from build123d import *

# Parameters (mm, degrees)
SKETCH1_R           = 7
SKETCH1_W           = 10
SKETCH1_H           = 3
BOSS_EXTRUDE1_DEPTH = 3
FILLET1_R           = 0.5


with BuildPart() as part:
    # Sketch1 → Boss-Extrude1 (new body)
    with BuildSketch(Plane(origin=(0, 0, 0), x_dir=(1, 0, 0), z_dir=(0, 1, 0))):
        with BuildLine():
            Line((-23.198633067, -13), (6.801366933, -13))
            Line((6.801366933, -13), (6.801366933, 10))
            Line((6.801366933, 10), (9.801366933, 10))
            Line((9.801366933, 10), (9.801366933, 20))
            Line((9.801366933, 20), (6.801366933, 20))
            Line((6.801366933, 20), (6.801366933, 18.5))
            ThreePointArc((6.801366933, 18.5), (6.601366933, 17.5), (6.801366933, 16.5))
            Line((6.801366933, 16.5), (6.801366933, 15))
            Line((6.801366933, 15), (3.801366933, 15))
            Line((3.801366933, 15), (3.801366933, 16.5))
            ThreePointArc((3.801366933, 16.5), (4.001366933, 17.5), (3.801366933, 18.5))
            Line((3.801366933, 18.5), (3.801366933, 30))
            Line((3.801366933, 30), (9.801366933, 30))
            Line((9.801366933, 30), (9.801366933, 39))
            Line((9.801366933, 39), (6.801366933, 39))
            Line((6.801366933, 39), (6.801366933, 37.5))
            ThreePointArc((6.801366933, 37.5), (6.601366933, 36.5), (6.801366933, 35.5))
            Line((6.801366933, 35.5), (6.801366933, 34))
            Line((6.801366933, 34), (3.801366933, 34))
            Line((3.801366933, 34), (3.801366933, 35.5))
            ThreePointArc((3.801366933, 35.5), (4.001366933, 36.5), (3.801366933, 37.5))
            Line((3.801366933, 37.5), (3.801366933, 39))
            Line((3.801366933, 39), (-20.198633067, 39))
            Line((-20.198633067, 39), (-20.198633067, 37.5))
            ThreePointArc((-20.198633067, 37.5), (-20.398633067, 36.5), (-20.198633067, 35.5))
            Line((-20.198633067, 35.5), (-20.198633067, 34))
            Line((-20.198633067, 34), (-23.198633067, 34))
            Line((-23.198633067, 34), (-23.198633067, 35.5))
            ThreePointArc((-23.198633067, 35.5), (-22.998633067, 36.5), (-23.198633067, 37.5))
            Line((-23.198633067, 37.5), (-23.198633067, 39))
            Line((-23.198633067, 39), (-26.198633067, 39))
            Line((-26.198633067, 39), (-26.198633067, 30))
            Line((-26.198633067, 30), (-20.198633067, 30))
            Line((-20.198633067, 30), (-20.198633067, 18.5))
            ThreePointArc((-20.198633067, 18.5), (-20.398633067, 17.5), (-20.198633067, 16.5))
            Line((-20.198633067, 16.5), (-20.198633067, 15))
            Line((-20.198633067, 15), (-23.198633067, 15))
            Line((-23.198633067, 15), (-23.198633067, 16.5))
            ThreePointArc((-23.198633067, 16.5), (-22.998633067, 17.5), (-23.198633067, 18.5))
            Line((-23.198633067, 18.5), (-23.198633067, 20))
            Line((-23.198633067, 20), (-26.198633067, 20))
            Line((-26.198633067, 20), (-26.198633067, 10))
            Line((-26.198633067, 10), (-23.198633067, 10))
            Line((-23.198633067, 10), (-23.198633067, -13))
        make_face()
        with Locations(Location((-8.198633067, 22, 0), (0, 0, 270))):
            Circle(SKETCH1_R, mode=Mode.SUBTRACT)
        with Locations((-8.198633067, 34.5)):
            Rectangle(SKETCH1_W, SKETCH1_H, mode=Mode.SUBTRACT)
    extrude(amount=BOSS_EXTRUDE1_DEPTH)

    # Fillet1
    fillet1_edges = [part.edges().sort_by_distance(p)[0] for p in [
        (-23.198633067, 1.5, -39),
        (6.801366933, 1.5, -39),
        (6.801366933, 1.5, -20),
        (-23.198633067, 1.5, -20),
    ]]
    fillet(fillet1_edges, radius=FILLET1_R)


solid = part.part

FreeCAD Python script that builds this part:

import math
import FreeCAD as App
import Part
import Sketcher
from FreeCAD import Vector
Q = App.Units.Quantity


def edges_at(feature, points):
    """Names of the edges that pass closest to the given points."""
    edges = feature.Shape.Edges
    near = lambda p: min(range(len(edges)), key=lambda i: edges[i].distToShape(Part.Vertex(*p))[0])
    return sorted({f"Edge{near(p) + 1}" for p in points})

doc = App.newDocument("Part")
body = doc.addObject("PartDesign::Body", "Body")

# Sketch on XZ plane
sketch1 = body.newObject("Sketcher::SketchObject", "Sketch")
sketch1.AttachmentSupport = (doc.getObject("XZ_Plane"), [""])
sketch1.MapMode = "FlatFace"
sketch1.addGeometry([
    Part.LineSegment(Vector(-23.2, 13, 0), Vector(6.8, 13, 0)),  # 0
    Part.LineSegment(Vector(6.8, 13, 0), Vector(6.8, -10, 0)),  # 1
    Part.LineSegment(Vector(6.8, -10, 0), Vector(9.8, -10, 0)),  # 2
    Part.LineSegment(Vector(9.8, -10, 0), Vector(9.8, -20, 0)),  # 3
    Part.LineSegment(Vector(9.8, -20, 0), Vector(6.8, -20, 0)),  # 4
    Part.LineSegment(Vector(6.8, -20, 0), Vector(6.8, -18.5, 0)),  # 5
    Part.ArcOfCircle(Part.Circle(Vector(9.2, -17.5, 0), Vector(0, 0, 1), 2.6), math.radians(157), math.radians(203)),  # 6
    Part.LineSegment(Vector(6.8, -16.5, 0), Vector(6.8, -15, 0)),  # 7
    Part.LineSegment(Vector(6.8, -15, 0), Vector(3.8, -15, 0)),  # 8
    Part.LineSegment(Vector(3.8, -15, 0), Vector(3.8, -16.5, 0)),  # 9
    Part.ArcOfCircle(Part.Circle(Vector(1.4, -17.5, 0), Vector(0, 0, 1), 2.6), math.radians(-23), math.radians(23)),  # 10
    Part.LineSegment(Vector(3.8, -18.5, 0), Vector(3.8, -30, 0)),  # 11
    Part.LineSegment(Vector(3.8, -30, 0), Vector(9.8, -30, 0)),  # 12
    Part.LineSegment(Vector(9.8, -30, 0), Vector(9.8, -39, 0)),  # 13
    Part.LineSegment(Vector(9.8, -39, 0), Vector(6.8, -39, 0)),  # 14
    Part.LineSegment(Vector(6.8, -39, 0), Vector(6.8, -37.5, 0)),  # 15
    Part.ArcOfCircle(Part.Circle(Vector(9.2, -36.5, 0), Vector(0, 0, 1), 2.6), math.radians(157), math.radians(203)),  # 16
    Part.LineSegment(Vector(6.8, -35.5, 0), Vector(6.8, -34, 0)),  # 17
    Part.LineSegment(Vector(6.8, -34, 0), Vector(3.8, -34, 0)),  # 18
    Part.LineSegment(Vector(3.8, -34, 0), Vector(3.8, -35.5, 0)),  # 19
    Part.ArcOfCircle(Part.Circle(Vector(1.4, -36.5, 0), Vector(0, 0, 1), 2.6), math.radians(-23), math.radians(23)),  # 20
    Part.LineSegment(Vector(3.8, -37.5, 0), Vector(3.8, -39, 0)),  # 21
    Part.LineSegment(Vector(3.8, -39, 0), Vector(-20.2, -39, 0)),  # 22
    Part.LineSegment(Vector(-20.2, -39, 0), Vector(-20.2, -37.5, 0)),  # 23
    Part.ArcOfCircle(Part.Circle(Vector(-17.8, -36.5, 0), Vector(0, 0, 1), 2.6), math.radians(157), math.radians(203)),  # 24
    Part.LineSegment(Vector(-20.2, -35.5, 0), Vector(-20.2, -34, 0)),  # 25
    Part.LineSegment(Vector(-20.2, -34, 0), Vector(-23.2, -34, 0)),  # 26
    Part.LineSegment(Vector(-23.2, -34, 0), Vector(-23.2, -35.5, 0)),  # 27
    Part.ArcOfCircle(Part.Circle(Vector(-25.6, -36.5, 0), Vector(0, 0, 1), 2.6), math.radians(-23), math.radians(23)),  # 28
    Part.LineSegment(Vector(-23.2, -37.5, 0), Vector(-23.2, -39, 0)),  # 29
    Part.LineSegment(Vector(-23.2, -39, 0), Vector(-26.2, -39, 0)),  # 30
    Part.LineSegment(Vector(-26.2, -39, 0), Vector(-26.2, -30, 0)),  # 31
    Part.LineSegment(Vector(-26.2, -30, 0), Vector(-20.2, -30, 0)),  # 32
    Part.LineSegment(Vector(-20.2, -30, 0), Vector(-20.2, -18.5, 0)),  # 33
    Part.ArcOfCircle(Part.Circle(Vector(-17.8, -17.5, 0), Vector(0, 0, 1), 2.6), math.radians(157), math.radians(203)),  # 34
    Part.LineSegment(Vector(-20.2, -16.5, 0), Vector(-20.2, -15, 0)),  # 35
    Part.LineSegment(Vector(-20.2, -15, 0), Vector(-23.2, -15, 0)),  # 36
    Part.LineSegment(Vector(-23.2, -15, 0), Vector(-23.2, -16.5, 0)),  # 37
    Part.ArcOfCircle(Part.Circle(Vector(-25.6, -17.5, 0), Vector(0, 0, 1), 2.6), math.radians(-23), math.radians(23)),  # 38
    Part.LineSegment(Vector(-23.2, -18.5, 0), Vector(-23.2, -20, 0)),  # 39
    Part.LineSegment(Vector(-23.2, -20, 0), Vector(-26.2, -20, 0)),  # 40
    Part.LineSegment(Vector(-26.2, -20, 0), Vector(-26.2, -10, 0)),  # 41
    Part.LineSegment(Vector(-26.2, -10, 0), Vector(-23.2, -10, 0)),  # 42
    Part.LineSegment(Vector(-23.2, -10, 0), Vector(-23.2, 13, 0)),  # 43
    Part.Circle(Vector(-8.2, -22, 0), Vector(0, 0, 1), 7),  # 44
    Part.LineSegment(Vector(-3.2, -33, 0), Vector(-13.2, -33, 0)),  # 45
    Part.LineSegment(Vector(-13.2, -33, 0), Vector(-13.2, -36, 0)),  # 46
    Part.LineSegment(Vector(-13.2, -36, 0), Vector(-3.2, -36, 0)),  # 47
    Part.LineSegment(Vector(-3.2, -36, 0), Vector(-3.2, -33, 0)),  # 48
], False)
sketch1.addConstraint([
    Sketcher.Constraint("Coincident", 0, 2, 1, 1),
    Sketcher.Constraint("Coincident", 1, 2, 2, 1),
    Sketcher.Constraint("Coincident", 2, 2, 3, 1),
    Sketcher.Constraint("Coincident", 3, 2, 4, 1),
    Sketcher.Constraint("Coincident", 4, 2, 5, 1),
    Sketcher.Constraint("Coincident", 5, 2, 6, 2),
    Sketcher.Constraint("Coincident", 6, 1, 7, 1),
    Sketcher.Constraint("Coincident", 7, 2, 8, 1),
    Sketcher.Constraint("Coincident", 8, 2, 9, 1),
    Sketcher.Constraint("Coincident", 9, 2, 10, 2),
    Sketcher.Constraint("Coincident", 10, 1, 11, 1),
    Sketcher.Constraint("Coincident", 11, 2, 12, 1),
    Sketcher.Constraint("Coincident", 12, 2, 13, 1),
    Sketcher.Constraint("Coincident", 13, 2, 14, 1),
    Sketcher.Constraint("Coincident", 14, 2, 15, 1),
    Sketcher.Constraint("Coincident", 15, 2, 16, 2),
    Sketcher.Constraint("Coincident", 16, 1, 17, 1),
    Sketcher.Constraint("Coincident", 17, 2, 18, 1),
    Sketcher.Constraint("Coincident", 18, 2, 19, 1),
    Sketcher.Constraint("Coincident", 19, 2, 20, 2),
    Sketcher.Constraint("Coincident", 20, 1, 21, 1),
    Sketcher.Constraint("Coincident", 21, 2, 22, 1),
    Sketcher.Constraint("Coincident", 22, 2, 23, 1),
    Sketcher.Constraint("Coincident", 23, 2, 24, 2),
    Sketcher.Constraint("Coincident", 24, 1, 25, 1),
    Sketcher.Constraint("Coincident", 25, 2, 26, 1),
    Sketcher.Constraint("Coincident", 26, 2, 27, 1),
    Sketcher.Constraint("Coincident", 27, 2, 28, 2),
    Sketcher.Constraint("Coincident", 28, 1, 29, 1),
    Sketcher.Constraint("Coincident", 29, 2, 30, 1),
    Sketcher.Constraint("Coincident", 30, 2, 31, 1),
    Sketcher.Constraint("Coincident", 31, 2, 32, 1),
    Sketcher.Constraint("Coincident", 32, 2, 33, 1),
    Sketcher.Constraint("Coincident", 33, 2, 34, 2),
    Sketcher.Constraint("Coincident", 34, 1, 35, 1),
    Sketcher.Constraint("Coincident", 35, 2, 36, 1),
    Sketcher.Constraint("Coincident", 36, 2, 37, 1),
    Sketcher.Constraint("Coincident", 37, 2, 38, 2),
    Sketcher.Constraint("Coincident", 38, 1, 39, 1),
    Sketcher.Constraint("Coincident", 39, 2, 40, 1),
    Sketcher.Constraint("Coincident", 40, 2, 41, 1),
    Sketcher.Constraint("Coincident", 41, 2, 42, 1),
    Sketcher.Constraint("Coincident", 42, 2, 43, 1),
    Sketcher.Constraint("Coincident", 43, 2, 0, 1),
    Sketcher.Constraint("Coincident", 45, 2, 46, 1),
    Sketcher.Constraint("Coincident", 46, 2, 47, 1),
    Sketcher.Constraint("Coincident", 47, 2, 48, 1),
    Sketcher.Constraint("Coincident", 48, 2, 45, 1),
    Sketcher.Constraint("Horizontal", 0),
    Sketcher.Constraint("Vertical", 1),
    Sketcher.Constraint("Horizontal", 2),
    Sketcher.Constraint("Vertical", 3),
    Sketcher.Constraint("Horizontal", 4),
    Sketcher.Constraint("Vertical", 5),
    Sketcher.Constraint("Vertical", 7),
    Sketcher.Constraint("Horizontal", 8),
    Sketcher.Constraint("Vertical", 9),
    Sketcher.Constraint("Vertical", 11),
    Sketcher.Constraint("Horizontal", 12),
    Sketcher.Constraint("Vertical", 13),
    Sketcher.Constraint("Horizontal", 14),
    Sketcher.Constraint("Vertical", 15),
    Sketcher.Constraint("Vertical", 17),
    Sketcher.Constraint("Horizontal", 18),
    Sketcher.Constraint("Vertical", 19),
    Sketcher.Constraint("Vertical", 21),
    Sketcher.Constraint("Horizontal", 22),
    Sketcher.Constraint("Vertical", 23),
    Sketcher.Constraint("Vertical", 25),
    Sketcher.Constraint("Horizontal", 26),
    Sketcher.Constraint("Vertical", 27),
    Sketcher.Constraint("Vertical", 29),
    Sketcher.Constraint("Horizontal", 30),
    Sketcher.Constraint("Vertical", 31),
    Sketcher.Constraint("Horizontal", 32),
    Sketcher.Constraint("Vertical", 33),
    Sketcher.Constraint("Vertical", 35),
    Sketcher.Constraint("Horizontal", 36),
    Sketcher.Constraint("Vertical", 37),
    Sketcher.Constraint("Vertical", 39),
    Sketcher.Constraint("Horizontal", 40),
    Sketcher.Constraint("Vertical", 41),
    Sketcher.Constraint("Horizontal", 42),
    Sketcher.Constraint("Vertical", 43),
    Sketcher.Constraint("Horizontal", 45),
    Sketcher.Constraint("Vertical", 46),
    Sketcher.Constraint("Horizontal", 47),
    Sketcher.Constraint("Vertical", 48),
    Sketcher.Constraint("Equal", 6, 10),
    Sketcher.Constraint("Equal", 10, 16),
    Sketcher.Constraint("Equal", 16, 20),
    Sketcher.Constraint("Equal", 20, 24),
    Sketcher.Constraint("Equal", 24, 28),
    Sketcher.Constraint("Equal", 28, 34),
    Sketcher.Constraint("Equal", 34, 38),
    Sketcher.Constraint("Horizontal", 6, 3, 10, 3),
    Sketcher.Constraint("Horizontal", 16, 3, 20, 3),
    Sketcher.Constraint("Horizontal", 20, 3, 24, 3),
    Sketcher.Constraint("Horizontal", 24, 3, 28, 3),
    Sketcher.Constraint("Horizontal", 10, 3, 34, 3),
    Sketcher.Constraint("Horizontal", 34, 3, 38, 3),
    Sketcher.Constraint("Horizontal", 6, 1, 9, 2),
    Sketcher.Constraint("Horizontal", 5, 2, 10, 1),
    Sketcher.Constraint("Horizontal", 16, 1, 19, 2),
    Sketcher.Constraint("Horizontal", 15, 2, 20, 1),
    Sketcher.Constraint("Horizontal", 14, 2, 21, 2),
    Sketcher.Constraint("Horizontal", 20, 1, 23, 2),
    Sketcher.Constraint("Horizontal", 19, 2, 24, 1),
    Sketcher.Constraint("Horizontal", 18, 2, 25, 2),
    Sketcher.Constraint("Horizontal", 24, 1, 27, 2),
    Sketcher.Constraint("Horizontal", 23, 2, 28, 1),
    Sketcher.Constraint("Horizontal", 22, 2, 29, 2),
    Sketcher.Constraint("Horizontal", 12, 2, 31, 2),
    Sketcher.Constraint("Horizontal", 10, 1, 33, 2),
    Sketcher.Constraint("Horizontal", 9, 2, 34, 1),
    Sketcher.Constraint("Horizontal", 8, 2, 35, 2),
    Sketcher.Constraint("Horizontal", 34, 1, 37, 2),
    Sketcher.Constraint("Horizontal", 33, 2, 38, 1),
    Sketcher.Constraint("Horizontal", 4, 2, 39, 2),
    Sketcher.Constraint("Horizontal", 2, 2, 41, 2),
    Sketcher.Constraint("Vertical", 6, 3, 16, 3),
    Sketcher.Constraint("Vertical", 10, 3, 20, 3),
    Sketcher.Constraint("Vertical", 24, 3, 34, 3),
    Sketcher.Constraint("Vertical", 28, 3, 38, 3),
    Sketcher.Constraint("Vertical", 1, 2, 4, 2),
    Sketcher.Constraint("Vertical", 5, 2, 6, 1),
    Sketcher.Constraint("Vertical", 3, 2, 12, 2),
    Sketcher.Constraint("Vertical", 7, 2, 14, 2),
    Sketcher.Constraint("Vertical", 15, 2, 16, 1),
    Sketcher.Constraint("Vertical", 31, 2, 40, 2),
    Sketcher.Constraint("Vertical", 39, 2, 42, 2),
    Sketcher.Constraint("Equal", 4, 8),
    Sketcher.Constraint("Equal", 18, 26),
    Sketcher.Constraint("Equal", 26, 30),
    Sketcher.Constraint("Equal", 47, 3),
    Sketcher.Constraint("Equal", 5, 7),
    Sketcher.Constraint("Equal", 9, 15),
    Sketcher.Constraint("Equal", 15, 17),
    Sketcher.Constraint("Equal", 42, 46),
    Sketcher.Constraint("Diameter", 44, Q("14 mm")),
    Sketcher.Constraint("Radius", 6, Q("2.6 mm")),
    Sketcher.Constraint("DistanceX", 0, 1, 0, 2, Q("30 mm")),
    Sketcher.Constraint("DistanceX", 2, 1, 2, 2, Q("3 mm")),
    Sketcher.Constraint("DistanceX", 45, 2, 45, 1, Q("10 mm")),
    Sketcher.Constraint("DistanceY", 1, 2, 1, 1, Q("23 mm")),
    Sketcher.Constraint("DistanceY", 13, 2, 13, 1, Q("9 mm")),
    Sketcher.Constraint("DistanceY", 5, 1, 5, 2, Q("1.5 mm")),
    Sketcher.Constraint("DistanceY", 11, 2, 11, 1, Q("11.5 mm")),
    Sketcher.Constraint("DistanceY", 44, 3, -1, 1, Q("22 mm")),
    Sketcher.Constraint("DistanceY", -1, 1, 0, 2, Q("13 mm")),
    Sketcher.Constraint("DistanceY", 7, 2, -1, 1, Q("15 mm")),
    Sketcher.Constraint("DistanceY", 45, 2, -1, 1, Q("33 mm")),
    Sketcher.Constraint("DistanceX", 44, 3, 0, 2, Q("15 mm")),
    Sketcher.Constraint("DistanceX", 25, 2, 45, 2, Q("7 mm")),
    Sketcher.Constraint("DistanceX", -1, 1, 6, 3, Q("9.201367 mm")),
])
pad1 = body.newObject("PartDesign::Pad", "Pad")
pad1.Profile = sketch1
pad1.Length = 3
pad1.Reversed = True
doc.recompute()

fillet = body.newObject("PartDesign::Fillet", "Fillet")
fillet.Base = (pad1, edges_at(pad1, [
    (-23.199, 1.5, -39),
    (6.801, 1.5, -39),
    (6.801, 1.5, -20),
    (-23.199, 1.5, -20),
]))
fillet.Radius = 0.5

doc.recompute()
